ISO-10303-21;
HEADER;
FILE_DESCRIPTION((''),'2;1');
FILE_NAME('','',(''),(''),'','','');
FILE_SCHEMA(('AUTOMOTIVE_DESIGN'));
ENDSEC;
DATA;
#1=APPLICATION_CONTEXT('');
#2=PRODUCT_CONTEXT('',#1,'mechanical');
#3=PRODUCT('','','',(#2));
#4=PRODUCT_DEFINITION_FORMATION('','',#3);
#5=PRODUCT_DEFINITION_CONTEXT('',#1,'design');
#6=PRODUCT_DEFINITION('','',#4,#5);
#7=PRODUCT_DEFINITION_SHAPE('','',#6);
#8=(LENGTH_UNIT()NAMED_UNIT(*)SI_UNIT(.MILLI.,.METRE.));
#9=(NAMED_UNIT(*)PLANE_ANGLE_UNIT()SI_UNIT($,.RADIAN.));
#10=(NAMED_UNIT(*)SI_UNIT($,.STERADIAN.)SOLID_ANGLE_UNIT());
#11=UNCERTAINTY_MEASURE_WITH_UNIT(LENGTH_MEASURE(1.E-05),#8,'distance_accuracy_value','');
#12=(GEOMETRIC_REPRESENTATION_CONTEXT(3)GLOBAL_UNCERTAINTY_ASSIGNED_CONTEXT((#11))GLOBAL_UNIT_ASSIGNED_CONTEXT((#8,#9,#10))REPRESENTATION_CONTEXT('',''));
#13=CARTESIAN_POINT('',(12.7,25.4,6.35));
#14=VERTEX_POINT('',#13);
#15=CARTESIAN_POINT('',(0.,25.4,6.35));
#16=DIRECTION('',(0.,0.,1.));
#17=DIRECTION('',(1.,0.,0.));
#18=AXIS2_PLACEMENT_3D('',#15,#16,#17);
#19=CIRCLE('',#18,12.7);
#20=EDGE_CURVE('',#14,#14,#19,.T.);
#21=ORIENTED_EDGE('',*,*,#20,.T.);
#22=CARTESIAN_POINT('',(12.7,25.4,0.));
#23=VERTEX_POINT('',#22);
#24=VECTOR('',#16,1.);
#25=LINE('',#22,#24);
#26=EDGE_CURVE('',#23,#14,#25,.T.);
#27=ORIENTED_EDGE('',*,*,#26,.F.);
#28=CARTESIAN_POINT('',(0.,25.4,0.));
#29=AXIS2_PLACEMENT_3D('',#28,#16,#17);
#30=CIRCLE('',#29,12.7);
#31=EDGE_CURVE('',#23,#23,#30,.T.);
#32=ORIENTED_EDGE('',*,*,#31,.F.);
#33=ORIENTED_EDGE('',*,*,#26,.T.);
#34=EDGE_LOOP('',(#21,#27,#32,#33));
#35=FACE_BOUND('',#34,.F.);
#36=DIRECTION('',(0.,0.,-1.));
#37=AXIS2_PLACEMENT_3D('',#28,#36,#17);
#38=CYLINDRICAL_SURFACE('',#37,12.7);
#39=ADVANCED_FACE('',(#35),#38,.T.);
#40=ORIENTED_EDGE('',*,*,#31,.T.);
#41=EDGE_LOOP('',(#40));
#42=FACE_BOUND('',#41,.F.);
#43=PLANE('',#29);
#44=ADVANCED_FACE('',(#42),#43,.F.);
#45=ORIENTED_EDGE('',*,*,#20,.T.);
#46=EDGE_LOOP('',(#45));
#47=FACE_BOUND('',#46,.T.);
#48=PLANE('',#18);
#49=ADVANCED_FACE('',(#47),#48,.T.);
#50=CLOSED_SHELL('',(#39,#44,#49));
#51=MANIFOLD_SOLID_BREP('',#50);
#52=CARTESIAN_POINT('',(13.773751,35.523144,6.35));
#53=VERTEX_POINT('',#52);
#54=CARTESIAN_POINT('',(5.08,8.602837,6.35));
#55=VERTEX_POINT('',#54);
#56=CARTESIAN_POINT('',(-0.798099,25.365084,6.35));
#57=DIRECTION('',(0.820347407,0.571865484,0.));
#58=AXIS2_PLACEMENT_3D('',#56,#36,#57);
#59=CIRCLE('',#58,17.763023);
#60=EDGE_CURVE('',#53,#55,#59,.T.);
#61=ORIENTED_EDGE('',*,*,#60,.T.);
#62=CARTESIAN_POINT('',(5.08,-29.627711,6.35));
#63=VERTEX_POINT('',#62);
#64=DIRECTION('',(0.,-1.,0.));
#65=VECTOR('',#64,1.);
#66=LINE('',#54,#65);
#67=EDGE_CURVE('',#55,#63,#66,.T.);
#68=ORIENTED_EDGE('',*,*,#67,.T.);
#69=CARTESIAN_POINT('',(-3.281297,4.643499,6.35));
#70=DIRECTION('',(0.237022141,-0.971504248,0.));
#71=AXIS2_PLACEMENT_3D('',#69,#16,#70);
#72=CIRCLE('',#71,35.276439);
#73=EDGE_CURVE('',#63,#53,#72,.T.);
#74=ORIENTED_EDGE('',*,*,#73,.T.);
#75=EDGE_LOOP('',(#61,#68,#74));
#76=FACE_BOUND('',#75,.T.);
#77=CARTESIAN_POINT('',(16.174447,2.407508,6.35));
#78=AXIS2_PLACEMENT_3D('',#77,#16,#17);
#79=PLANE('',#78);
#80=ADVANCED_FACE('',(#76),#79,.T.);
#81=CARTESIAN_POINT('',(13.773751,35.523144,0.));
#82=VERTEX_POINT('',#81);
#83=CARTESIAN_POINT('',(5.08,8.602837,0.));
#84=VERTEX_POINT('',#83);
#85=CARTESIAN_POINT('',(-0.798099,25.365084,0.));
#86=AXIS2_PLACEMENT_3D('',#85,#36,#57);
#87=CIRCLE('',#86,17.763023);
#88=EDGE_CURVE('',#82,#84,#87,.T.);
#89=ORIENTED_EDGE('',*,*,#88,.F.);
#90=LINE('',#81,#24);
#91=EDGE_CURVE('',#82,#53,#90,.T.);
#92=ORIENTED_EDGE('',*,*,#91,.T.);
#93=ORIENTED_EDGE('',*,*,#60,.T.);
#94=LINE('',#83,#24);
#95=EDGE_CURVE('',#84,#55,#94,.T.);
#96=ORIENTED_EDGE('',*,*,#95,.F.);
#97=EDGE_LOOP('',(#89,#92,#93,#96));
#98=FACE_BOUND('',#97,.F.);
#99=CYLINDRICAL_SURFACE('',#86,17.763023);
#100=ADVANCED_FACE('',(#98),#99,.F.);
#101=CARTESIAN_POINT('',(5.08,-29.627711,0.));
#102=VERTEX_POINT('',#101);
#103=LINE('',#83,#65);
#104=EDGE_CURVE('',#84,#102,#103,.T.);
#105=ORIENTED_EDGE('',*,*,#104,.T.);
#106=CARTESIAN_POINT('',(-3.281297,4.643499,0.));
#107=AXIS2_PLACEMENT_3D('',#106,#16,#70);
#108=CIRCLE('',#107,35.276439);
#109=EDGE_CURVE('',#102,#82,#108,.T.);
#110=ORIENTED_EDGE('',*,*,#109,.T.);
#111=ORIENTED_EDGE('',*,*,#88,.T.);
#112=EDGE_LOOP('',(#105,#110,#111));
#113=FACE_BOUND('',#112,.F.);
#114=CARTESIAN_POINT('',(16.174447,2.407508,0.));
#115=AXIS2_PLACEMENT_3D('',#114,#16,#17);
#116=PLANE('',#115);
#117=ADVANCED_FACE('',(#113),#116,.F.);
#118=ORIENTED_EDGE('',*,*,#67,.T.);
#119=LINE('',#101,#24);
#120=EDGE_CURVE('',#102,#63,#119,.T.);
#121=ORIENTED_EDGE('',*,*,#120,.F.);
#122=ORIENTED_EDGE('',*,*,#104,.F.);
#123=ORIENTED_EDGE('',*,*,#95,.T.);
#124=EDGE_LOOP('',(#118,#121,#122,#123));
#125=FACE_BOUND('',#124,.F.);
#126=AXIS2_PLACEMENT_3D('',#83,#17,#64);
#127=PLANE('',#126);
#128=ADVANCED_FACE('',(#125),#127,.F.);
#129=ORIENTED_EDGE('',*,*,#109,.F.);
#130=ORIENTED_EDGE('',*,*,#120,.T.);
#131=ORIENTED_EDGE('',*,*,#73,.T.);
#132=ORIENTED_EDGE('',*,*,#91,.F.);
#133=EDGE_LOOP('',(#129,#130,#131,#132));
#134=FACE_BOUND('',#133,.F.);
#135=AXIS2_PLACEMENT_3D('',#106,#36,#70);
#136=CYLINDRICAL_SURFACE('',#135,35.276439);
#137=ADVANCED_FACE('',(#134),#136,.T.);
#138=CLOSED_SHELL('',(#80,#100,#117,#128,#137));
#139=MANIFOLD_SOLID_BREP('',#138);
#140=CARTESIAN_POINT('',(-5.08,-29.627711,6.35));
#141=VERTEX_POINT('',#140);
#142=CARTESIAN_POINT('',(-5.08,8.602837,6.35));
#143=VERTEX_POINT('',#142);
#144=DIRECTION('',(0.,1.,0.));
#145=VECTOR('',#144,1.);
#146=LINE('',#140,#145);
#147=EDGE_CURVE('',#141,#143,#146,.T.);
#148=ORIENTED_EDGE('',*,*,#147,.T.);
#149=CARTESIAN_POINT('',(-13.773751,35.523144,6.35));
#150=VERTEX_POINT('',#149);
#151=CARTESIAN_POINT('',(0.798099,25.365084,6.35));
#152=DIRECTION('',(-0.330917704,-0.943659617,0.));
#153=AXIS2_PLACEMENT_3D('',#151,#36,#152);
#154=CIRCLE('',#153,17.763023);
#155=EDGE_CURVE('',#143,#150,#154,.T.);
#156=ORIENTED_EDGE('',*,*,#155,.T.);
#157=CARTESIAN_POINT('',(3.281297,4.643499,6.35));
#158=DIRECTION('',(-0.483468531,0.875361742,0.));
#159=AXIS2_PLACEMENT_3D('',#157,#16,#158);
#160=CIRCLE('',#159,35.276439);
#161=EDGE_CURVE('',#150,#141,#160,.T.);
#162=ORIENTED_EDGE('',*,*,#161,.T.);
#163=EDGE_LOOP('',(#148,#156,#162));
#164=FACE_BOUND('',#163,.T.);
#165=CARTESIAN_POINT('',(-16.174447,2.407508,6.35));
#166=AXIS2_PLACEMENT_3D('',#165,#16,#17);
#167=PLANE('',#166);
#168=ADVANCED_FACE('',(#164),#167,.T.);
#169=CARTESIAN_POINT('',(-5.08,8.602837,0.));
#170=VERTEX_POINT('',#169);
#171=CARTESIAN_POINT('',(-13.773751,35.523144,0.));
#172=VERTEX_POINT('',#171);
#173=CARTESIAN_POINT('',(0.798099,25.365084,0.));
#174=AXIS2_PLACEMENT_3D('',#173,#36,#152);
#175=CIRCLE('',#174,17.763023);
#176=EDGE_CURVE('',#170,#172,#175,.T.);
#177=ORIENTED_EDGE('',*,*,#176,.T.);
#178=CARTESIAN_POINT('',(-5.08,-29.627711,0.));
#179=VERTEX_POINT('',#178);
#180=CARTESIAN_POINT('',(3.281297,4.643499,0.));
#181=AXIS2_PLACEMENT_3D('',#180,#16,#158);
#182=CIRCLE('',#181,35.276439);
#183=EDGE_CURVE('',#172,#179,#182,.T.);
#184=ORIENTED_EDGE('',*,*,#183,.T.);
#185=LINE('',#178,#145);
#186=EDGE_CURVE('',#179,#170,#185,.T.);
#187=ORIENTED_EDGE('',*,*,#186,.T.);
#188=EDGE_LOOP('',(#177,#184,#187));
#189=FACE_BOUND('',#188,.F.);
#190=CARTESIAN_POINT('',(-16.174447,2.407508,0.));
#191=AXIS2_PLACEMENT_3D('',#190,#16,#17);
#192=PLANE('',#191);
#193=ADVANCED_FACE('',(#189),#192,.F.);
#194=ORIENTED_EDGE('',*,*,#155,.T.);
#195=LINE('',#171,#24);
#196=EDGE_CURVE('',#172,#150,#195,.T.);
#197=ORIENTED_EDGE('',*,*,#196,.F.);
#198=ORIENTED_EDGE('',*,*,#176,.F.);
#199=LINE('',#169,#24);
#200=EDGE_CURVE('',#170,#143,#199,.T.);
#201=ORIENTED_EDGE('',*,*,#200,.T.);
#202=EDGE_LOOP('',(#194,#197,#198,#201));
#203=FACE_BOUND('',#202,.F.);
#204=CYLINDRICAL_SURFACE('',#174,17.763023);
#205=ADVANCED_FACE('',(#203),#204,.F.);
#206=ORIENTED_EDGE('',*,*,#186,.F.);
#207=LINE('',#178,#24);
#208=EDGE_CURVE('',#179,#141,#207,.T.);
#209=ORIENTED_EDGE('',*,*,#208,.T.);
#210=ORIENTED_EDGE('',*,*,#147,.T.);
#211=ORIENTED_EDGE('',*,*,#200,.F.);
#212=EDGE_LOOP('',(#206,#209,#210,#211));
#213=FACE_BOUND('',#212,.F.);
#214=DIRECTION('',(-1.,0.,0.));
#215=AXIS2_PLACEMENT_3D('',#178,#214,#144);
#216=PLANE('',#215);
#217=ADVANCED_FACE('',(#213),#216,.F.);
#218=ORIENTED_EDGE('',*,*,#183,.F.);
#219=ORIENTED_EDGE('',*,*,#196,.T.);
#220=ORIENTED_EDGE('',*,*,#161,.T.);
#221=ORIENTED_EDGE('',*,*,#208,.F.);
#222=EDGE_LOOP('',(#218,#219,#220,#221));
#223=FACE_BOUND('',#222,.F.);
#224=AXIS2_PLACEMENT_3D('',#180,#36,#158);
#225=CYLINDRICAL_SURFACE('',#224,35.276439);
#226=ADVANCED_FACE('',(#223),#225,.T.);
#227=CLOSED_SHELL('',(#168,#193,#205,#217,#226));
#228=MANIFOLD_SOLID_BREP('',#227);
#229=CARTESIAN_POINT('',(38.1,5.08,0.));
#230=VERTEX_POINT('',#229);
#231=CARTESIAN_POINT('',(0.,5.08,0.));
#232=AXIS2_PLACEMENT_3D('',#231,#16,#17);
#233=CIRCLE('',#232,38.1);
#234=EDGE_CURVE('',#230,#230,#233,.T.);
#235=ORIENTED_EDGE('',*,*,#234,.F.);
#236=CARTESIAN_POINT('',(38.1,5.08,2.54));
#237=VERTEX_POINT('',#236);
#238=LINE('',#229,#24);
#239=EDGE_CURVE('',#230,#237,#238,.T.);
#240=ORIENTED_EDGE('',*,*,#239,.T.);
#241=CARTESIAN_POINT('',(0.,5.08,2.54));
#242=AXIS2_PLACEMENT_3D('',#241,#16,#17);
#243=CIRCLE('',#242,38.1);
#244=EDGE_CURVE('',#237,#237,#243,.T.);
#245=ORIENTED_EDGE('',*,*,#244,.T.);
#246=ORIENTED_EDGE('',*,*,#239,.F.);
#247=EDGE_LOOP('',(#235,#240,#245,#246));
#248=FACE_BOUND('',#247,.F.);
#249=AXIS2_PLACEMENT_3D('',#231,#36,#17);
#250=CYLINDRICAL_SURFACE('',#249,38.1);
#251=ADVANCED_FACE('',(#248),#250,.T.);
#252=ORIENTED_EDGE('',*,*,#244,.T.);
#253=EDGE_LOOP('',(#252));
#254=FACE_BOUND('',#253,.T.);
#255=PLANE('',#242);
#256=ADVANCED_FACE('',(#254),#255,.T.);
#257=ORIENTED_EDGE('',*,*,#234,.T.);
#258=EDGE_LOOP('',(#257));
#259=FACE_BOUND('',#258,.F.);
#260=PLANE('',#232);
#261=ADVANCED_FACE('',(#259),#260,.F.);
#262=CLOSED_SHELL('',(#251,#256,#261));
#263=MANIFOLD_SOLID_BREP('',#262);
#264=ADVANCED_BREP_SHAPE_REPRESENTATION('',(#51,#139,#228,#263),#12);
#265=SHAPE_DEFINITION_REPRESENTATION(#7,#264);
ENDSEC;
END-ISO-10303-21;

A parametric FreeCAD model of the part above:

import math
import FreeCAD as App
import Part
import Sketcher
Q = App.Units.Quantity

doc = App.newDocument("Part")
body = doc.addObject("PartDesign::Body", "Body")
body.AllowCompound = True

# Sketch on XY plane
sketch1 = body.newObject("Sketcher::SketchObject", "Sketch")
sketch1.AttachmentSupport = (doc.getObject("XY_Plane"), [""])
sketch1.MapMode = "FlatFace"
sketch1.addGeometry([
    Part.ArcOfCircle(Part.Circle(App.Vector(-1, 25, 0), App.Vector(0, 0, 1), 18), math.radians(-71), math.radians(35)),  # 0
    Part.LineSegment(App.Vector(5, 9, 0), App.Vector(5, -30, 0)),  # 1
    Part.ArcOfCircle(Part.Circle(App.Vector(-3, 5, 0), App.Vector(0, 0, 1), 35), math.radians(-76), math.radians(61)),  # 2
    Part.ArcOfCircle(Part.Circle(App.Vector(1, 25, 0), App.Vector(0, 0, 1), 18), math.radians(145), math.radians(251)),  # 3
    Part.ArcOfCircle(Part.Circle(App.Vector(3, 5, 0), App.Vector(0, 0, 1), 35), math.radians(119), math.radians(256)),  # 4
    Part.LineSegment(App.Vector(-5, -30, 0), App.Vector(-5, 9, 0)),  # 5
    Part.Circle(App.Vector(0, 25, 0), App.Vector(0, 0, 1), 13),  # 6
], False)
sketch1.addConstraint([
    Sketcher.Constraint("Coincident", 0, 1, 1, 1),
    Sketcher.Constraint("Coincident", 1, 2, 2, 1),
    Sketcher.Constraint("Coincident", 2, 2, 0, 2),
    Sketcher.Constraint("Coincident", 3, 1, 4, 1),
    Sketcher.Constraint("Coincident", 4, 2, 5, 1),
    Sketcher.Constraint("Coincident", 5, 2, 3, 2),
    Sketcher.Constraint("Vertical", 1),
    Sketcher.Constraint("Vertical", 5),
    Sketcher.Constraint("Equal", 0, 3),
    Sketcher.Constraint("Equal", 2, 4),
    Sketcher.Constraint("Symmetric", 0, 3, 3, 3, -2),
    Sketcher.Constraint("Symmetric", 2, 3, 4, 3, -2),
    Sketcher.Constraint("PointOnObject", 6, 3, -2),
    Sketcher.Constraint("Horizontal", 1, 2, 4, 2),
    Sketcher.Constraint("Diameter", 6, Q("1 in")),
    Sketcher.Constraint("DistanceY", -1, 1, 6, 3, Q("1 in")),
    Sketcher.Constraint("DistanceX", -1, 1, 0, 1, Q("0.2 in")),
    Sketcher.Constraint("Radius", 2, 35.276439),
    Sketcher.Constraint("Radius", 0, 17.763023),
    Sketcher.Constraint("DistanceX", 0, 3, -1, 1, 0.798099),
    Sketcher.Constraint("DistanceY", -1, 1, 2, 3, 4.643499),
    Sketcher.Constraint("DistanceX", 2, 3, 0, 3, 2.483198),
    Sketcher.Constraint("DistanceX", 3, 1, 2, 2, 27.547502),
])
pad1 = body.newObject("PartDesign::Pad", "Pad")
pad1.Profile = sketch1
pad1.Length = Q("0.25 in")
body2 = doc.addObject("PartDesign::Body", "Body001")

# Sketch on XY plane
sketch2 = body2.newObject("Sketcher::SketchObject", "Sketch001")
sketch2.AttachmentSupport = (doc.getObject("XY_Plane001"), [""])
sketch2.MapMode = "FlatFace"
sketch2.addGeometry(Part.Circle(App.Vector(0, 5, 0), App.Vector(0, 0, 1), 38), False)
sketch2.addConstraint([
    Sketcher.Constraint("PointOnObject", 0, 3, -2),
    Sketcher.Constraint("Diameter", 0, Q("3 in")),
    Sketcher.Constraint("DistanceY", -1, 1, 0, 3, Q("0.2 in")),
])
pad2 = body2.newObject("PartDesign::Pad", "Pad001")
pad2.Profile = sketch2
pad2.Length = Q("0.1 in")

doc.recompute()
